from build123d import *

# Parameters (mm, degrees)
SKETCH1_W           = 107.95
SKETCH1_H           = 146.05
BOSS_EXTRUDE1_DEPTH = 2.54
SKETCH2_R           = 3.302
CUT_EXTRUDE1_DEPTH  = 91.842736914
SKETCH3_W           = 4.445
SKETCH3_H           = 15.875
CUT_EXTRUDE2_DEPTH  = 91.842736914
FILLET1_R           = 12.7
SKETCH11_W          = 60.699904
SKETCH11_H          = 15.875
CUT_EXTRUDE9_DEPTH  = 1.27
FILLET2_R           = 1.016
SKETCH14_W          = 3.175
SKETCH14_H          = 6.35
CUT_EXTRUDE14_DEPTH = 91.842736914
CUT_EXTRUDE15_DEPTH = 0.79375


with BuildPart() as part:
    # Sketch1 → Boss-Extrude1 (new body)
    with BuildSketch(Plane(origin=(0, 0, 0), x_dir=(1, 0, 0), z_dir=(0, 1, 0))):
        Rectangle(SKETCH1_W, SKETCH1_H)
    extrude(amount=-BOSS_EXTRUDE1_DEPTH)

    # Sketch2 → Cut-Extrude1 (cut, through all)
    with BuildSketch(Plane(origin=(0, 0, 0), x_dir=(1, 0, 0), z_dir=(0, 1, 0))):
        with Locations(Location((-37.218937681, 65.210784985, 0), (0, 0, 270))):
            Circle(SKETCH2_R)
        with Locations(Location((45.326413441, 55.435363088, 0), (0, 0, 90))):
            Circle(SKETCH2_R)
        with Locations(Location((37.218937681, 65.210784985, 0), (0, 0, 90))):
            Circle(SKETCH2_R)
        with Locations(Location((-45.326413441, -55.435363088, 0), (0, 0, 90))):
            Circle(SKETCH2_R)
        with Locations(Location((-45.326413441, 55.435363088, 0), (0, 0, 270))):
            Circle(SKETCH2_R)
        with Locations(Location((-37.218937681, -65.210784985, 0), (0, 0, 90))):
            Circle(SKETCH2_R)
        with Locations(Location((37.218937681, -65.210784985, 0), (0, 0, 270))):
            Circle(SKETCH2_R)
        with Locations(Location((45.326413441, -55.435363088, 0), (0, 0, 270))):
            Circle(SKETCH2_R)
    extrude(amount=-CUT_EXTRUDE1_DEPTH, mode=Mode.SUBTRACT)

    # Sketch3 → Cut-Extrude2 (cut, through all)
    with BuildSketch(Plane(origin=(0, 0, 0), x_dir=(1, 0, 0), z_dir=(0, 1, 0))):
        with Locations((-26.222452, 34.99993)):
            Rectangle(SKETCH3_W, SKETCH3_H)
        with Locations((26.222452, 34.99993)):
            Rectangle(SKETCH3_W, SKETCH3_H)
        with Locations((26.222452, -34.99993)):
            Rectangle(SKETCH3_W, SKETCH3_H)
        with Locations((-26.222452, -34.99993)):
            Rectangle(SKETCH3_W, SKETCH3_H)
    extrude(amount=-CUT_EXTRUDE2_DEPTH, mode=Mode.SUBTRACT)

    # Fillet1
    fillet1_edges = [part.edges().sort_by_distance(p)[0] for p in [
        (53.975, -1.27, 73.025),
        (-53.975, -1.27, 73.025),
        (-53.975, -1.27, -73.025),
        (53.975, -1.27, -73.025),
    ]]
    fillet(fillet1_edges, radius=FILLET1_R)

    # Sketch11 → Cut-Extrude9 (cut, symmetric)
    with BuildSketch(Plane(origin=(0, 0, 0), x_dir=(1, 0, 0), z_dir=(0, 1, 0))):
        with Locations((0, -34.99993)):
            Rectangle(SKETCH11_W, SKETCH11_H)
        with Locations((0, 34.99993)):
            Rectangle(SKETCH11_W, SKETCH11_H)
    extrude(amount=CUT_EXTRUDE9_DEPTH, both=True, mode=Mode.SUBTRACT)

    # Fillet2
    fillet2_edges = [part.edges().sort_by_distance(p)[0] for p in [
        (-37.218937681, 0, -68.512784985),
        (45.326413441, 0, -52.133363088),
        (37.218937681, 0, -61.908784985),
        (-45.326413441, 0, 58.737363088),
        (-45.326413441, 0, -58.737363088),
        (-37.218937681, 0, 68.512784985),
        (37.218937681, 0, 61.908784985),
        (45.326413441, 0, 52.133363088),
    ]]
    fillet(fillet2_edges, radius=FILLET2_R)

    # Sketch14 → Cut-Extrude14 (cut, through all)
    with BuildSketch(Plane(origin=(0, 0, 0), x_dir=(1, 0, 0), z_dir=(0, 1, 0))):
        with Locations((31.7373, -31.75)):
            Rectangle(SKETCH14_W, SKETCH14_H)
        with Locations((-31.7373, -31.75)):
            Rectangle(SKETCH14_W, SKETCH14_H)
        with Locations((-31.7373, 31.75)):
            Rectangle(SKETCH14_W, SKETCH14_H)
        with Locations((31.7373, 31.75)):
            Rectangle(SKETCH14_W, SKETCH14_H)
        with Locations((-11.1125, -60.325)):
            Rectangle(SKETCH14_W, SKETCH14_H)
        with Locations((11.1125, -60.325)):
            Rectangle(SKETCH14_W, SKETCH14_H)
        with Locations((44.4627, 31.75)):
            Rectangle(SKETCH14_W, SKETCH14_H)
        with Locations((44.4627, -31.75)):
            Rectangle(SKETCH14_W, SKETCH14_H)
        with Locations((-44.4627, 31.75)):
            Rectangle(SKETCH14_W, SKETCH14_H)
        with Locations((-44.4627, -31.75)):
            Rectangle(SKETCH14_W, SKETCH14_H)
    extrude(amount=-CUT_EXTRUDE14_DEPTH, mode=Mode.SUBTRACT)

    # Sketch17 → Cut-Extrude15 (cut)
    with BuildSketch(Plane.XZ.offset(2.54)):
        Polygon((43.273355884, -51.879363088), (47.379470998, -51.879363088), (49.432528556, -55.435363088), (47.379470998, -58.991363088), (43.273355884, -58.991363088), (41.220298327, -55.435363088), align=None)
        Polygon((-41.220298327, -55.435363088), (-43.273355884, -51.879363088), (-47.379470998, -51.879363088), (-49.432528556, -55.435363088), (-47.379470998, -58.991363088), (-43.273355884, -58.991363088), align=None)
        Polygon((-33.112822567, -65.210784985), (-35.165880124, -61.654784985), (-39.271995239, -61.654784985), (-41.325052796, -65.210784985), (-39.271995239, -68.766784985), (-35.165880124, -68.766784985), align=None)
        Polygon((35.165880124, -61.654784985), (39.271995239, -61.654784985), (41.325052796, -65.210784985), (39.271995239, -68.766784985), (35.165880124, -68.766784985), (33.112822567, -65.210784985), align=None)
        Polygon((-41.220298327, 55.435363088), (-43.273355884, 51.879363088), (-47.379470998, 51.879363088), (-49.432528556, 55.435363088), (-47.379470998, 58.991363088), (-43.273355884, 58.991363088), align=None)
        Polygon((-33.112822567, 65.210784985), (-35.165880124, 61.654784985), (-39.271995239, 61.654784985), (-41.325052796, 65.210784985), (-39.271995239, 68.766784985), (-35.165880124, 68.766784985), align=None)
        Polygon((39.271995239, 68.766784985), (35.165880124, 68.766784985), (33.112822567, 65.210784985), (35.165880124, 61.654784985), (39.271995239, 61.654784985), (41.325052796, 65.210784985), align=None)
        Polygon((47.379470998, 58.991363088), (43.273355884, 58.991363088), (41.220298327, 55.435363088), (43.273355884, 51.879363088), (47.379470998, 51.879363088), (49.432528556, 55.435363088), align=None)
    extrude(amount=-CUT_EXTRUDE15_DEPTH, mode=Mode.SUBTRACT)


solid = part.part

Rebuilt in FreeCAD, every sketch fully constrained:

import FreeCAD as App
import Part
import Sketcher
Q = App.Units.Quantity


def edges_at(feature, points):
    """Names of the edges that pass closest to the given points."""
    edges = feature.Shape.Edges
    near = lambda p: min(range(len(edges)), key=lambda i: edges[i].distToShape(Part.Vertex(*p))[0])
    return sorted({f"Edge{near(p) + 1}" for p in points})


def add_polygon(sketch, points):
    """Adds a closed chain of lines whose ends are joined by coincident constraints."""
    first, n = sketch.GeometryCount, len(points)
    for a, b in zip(points, points[1:] + points[:1]):
        sketch.addGeometry(Part.LineSegment(App.Vector(*a, 0), App.Vector(*b, 0)), False)
    for i in range(n):
        sketch.addConstraint(Sketcher.Constraint("Coincident", first + i, 2, first + (i + 1) % n, 1))

doc = App.newDocument("Part")
body = doc.addObject("PartDesign::Body", "Body")

# Sketch on XZ plane
sketch1 = body.newObject("Sketcher::SketchObject", "Sketch")
sketch1.AttachmentSupport = (doc.getObject("XZ_Plane"), [""])
sketch1.MapMode = "FlatFace"
add_polygon(sketch1, [(-54, -73), (-54, 73), (54, 73), (54, -73)])  # lines 0-3
sketch1.addConstraint([
    Sketcher.Constraint("Vertical", 0),
    Sketcher.Constraint("Horizontal", 1),
    Sketcher.Constraint("Vertical", 2),
    Sketcher.Constraint("Horizontal", 3),
    Sketcher.Constraint("Symmetric", 0, 2, 2, 2, -1, 1),
    Sketcher.Constraint("DistanceX", 1, 1, 1, 2, Q("4.25 in")),
    Sketcher.Constraint("DistanceY", 0, 1, 0, 2, Q("5.75 in")),
])
pad1 = body.newObject("PartDesign::Pad", "Pad")
pad1.Profile = sketch1
pad1.Length = Q("0.1 in")

# Sketch on XZ plane
sketch2 = body.newObject("Sketcher::SketchObject", "Sketch001")
sketch2.AttachmentSupport = (doc.getObject("XZ_Plane"), [""])
sketch2.MapMode = "FlatFace"
sketch2.addGeometry([
    Part.Circle(App.Vector(-37.2, -65.2, 0), App.Vector(0, 0, 1), 3.3),  # 0
    Part.Circle(App.Vector(45.3, -55.4, 0), App.Vector(0, 0, 1), 3.3),  # 1
    Part.Circle(App.Vector(37.2, -65.2, 0), App.Vector(0, 0, 1), 3.3),  # 2
    Part.Circle(App.Vector(-45.3, 55.4, 0), App.Vector(0, 0, 1), 3.3),  # 3
    Part.Circle(App.Vector(-45.3, -55.4, 0), App.Vector(0, 0, 1), 3.3),  # 4
    Part.Circle(App.Vector(-37.2, 65.2, 0), App.Vector(0, 0, 1), 3.3),  # 5
    Part.Circle(App.Vector(37.2, 65.2, 0), App.Vector(0, 0, 1), 3.3),  # 6
    Part.Circle(App.Vector(45.3, 55.4, 0), App.Vector(0, 0, 1), 3.3),  # 7
], False)
sketch2.addConstraint([
    Sketcher.Constraint("Equal", 0, 1),
    Sketcher.Constraint("Equal", 1, 2),
    Sketcher.Constraint("Equal", 2, 3),
    Sketcher.Constraint("Equal", 3, 4),
    Sketcher.Constraint("Equal", 4, 5),
    Sketcher.Constraint("Equal", 5, 6),
    Sketcher.Constraint("Equal", 6, 7),
    Sketcher.Constraint("Symmetric", 1, 3, 3, 3, -1, 1),
    Sketcher.Constraint("Symmetric", 2, 3, 5, 3, -1, 1),
    Sketcher.Constraint("Symmetric", 0, 3, 6, 3, -1, 1),
    Sketcher.Constraint("Symmetric", 4, 3, 7, 3, -1, 1),
    Sketcher.Constraint("Symmetric", 0, 3, 2, 3, -2),
    Sketcher.Constraint("Symmetric", 1, 3, 4, 3, -2),
    Sketcher.Constraint("Diameter", 0, Q("0.26 in")),
    Sketcher.Constraint("DistanceX", 0, 3, 1, 3, Q("82.545351 mm")),
    Sketcher.Constraint("DistanceY", 0, 3, 1, 3, Q("9.775422 mm")),
    Sketcher.Constraint("DistanceY", 0, 3, 3, 3, Q("120.646148 mm")),
    Sketcher.Constraint("DistanceX", 0, 3, -1, 1, Q("37.218938 mm")),
])
pocket1 = body.newObject("PartDesign::Pocket", "Pocket")
pocket1.Profile = sketch2
pocket1.Type = "ThroughAll"
pocket1.Reversed = True

# Sketch on XZ plane
sketch3 = body.newObject("Sketcher::SketchObject", "Sketch002")
sketch3.AttachmentSupport = (doc.getObject("XZ_Plane"), [""])
sketch3.MapMode = "FlatFace"
add_polygon(sketch3, [(-28.4, -42.9), (-28.4, -27.1), (-24, -27.1), (-24, -42.9)])  # lines 0-3
add_polygon(sketch3, [(24, -42.9), (24, -27.1), (28.4, -27.1), (28.4, -42.9)])  # lines 4-7
add_polygon(sketch3, [(24, 27.1), (24, 42.9), (28.4, 42.9), (28.4, 27.1)])  # lines 8-11
add_polygon(sketch3, [(-28.4, 27.1), (-28.4, 42.9), (-24, 42.9), (-24, 27.1)])  # lines 12-15
sketch3.addConstraint([
    Sketcher.Constraint("Vertical", 0),
    Sketcher.Constraint("Horizontal", 1),
    Sketcher.Constraint("Vertical", 2),
    Sketcher.Constraint("Horizontal", 3),
    Sketcher.Constraint("Vertical", 4),
    Sketcher.Constraint("Horizontal", 5),
    Sketcher.Constraint("Vertical", 6),
    Sketcher.Constraint("Horizontal", 7),
    Sketcher.Constraint("Vertical", 8),
    Sketcher.Constraint("Horizontal", 9),
    Sketcher.Constraint("Vertical", 10),
    Sketcher.Constraint("Horizontal", 11),
    Sketcher.Constraint("Vertical", 12),
    Sketcher.Constraint("Horizontal", 13),
    Sketcher.Constraint("Vertical", 14),
    Sketcher.Constraint("Horizontal", 15),
    Sketcher.Constraint("Symmetric", 2, 2, 8, 2, -1, 1),
    Sketcher.Constraint("Symmetric", 0, 2, 10, 2, -1, 1),
    Sketcher.Constraint("Symmetric", 6, 2, 12, 2, -1, 1),
    Sketcher.Constraint("Symmetric", 4, 2, 14, 2, -1, 1),
    Sketcher.Constraint("Symmetric", 1, 2, 4, 2, -2),
    Sketcher.Constraint("Symmetric", 3, 2, 6, 2, -2),
    Sketcher.Constraint("DistanceX", 1, 1, 1, 2, Q("0.175 in")),
    Sketcher.Constraint("DistanceY", 0, 1, 0, 2, Q("0.625 in")),
    Sketcher.Constraint("DistanceY", 4, 2, 8, 2, Q("2.7559 in")),
    Sketcher.Constraint("DistanceX", 0, 2, -1, 1, Q("28.444952 mm")),
])
pocket2 = body.newObject("PartDesign::Pocket", "Pocket001")
pocket2.Profile = sketch3
pocket2.Type = "ThroughAll"
pocket2.Reversed = True
doc.recompute()

fillet = body.newObject("PartDesign::Fillet", "Fillet")
fillet.Base = (pocket2, edges_at(pocket2, [
    (53.975, -1.27, 73.025),
    (-53.975, -1.27, 73.025),
    (-53.975, -1.27, -73.025),
    (53.975, -1.27, -73.025),
]))
fillet.Radius = Q("0.5 in")

# Sketch on XZ plane
sketch4 = body.newObject("Sketcher::SketchObject", "Sketch003")
sketch4.AttachmentSupport = (doc.getObject("XZ_Plane"), [""])
sketch4.MapMode = "FlatFace"
add_polygon(sketch4, [(-30, 27), (-30, 43), (30, 43), (30, 27)])  # lines 0-3
add_polygon(sketch4, [(-30, -43), (-30, -27), (30, -27), (30, -43)])  # lines 4-7
sketch4.addConstraint([
    Sketcher.Constraint("Vertical", 0),
    Sketcher.Constraint("Horizontal", 1),
    Sketcher.Constraint("Vertical", 2),
    Sketcher.Constraint("Horizontal", 3),
    Sketcher.Constraint("Vertical", 4),
    Sketcher.Constraint("Horizontal", 5),
    Sketcher.Constraint("Vertical", 6),
    Sketcher.Constraint("Horizontal", 7),
    Sketcher.Constraint("Symmetric", 2, 2, 4, 2, -1, 1),
    Sketcher.Constraint("Symmetric", 0, 2, 6, 2, -1, 1),
    Sketcher.Constraint("Vertical", 3, 2, 4, 2),
    Sketcher.Constraint("DistanceY", 0, 1, 0, 2, Q("0.625 in")),
    Sketcher.Constraint("DistanceY", 4, 2, 3, 2, Q("2.1309 in")),
    Sketcher.Constraint("DistanceX", 1, 1, 1, 2, Q("60.699904 mm")),
])
pocket3 = body.newObject("PartDesign::Pocket", "Pocket002")
pocket3.Profile = sketch4
pocket3.Length = Q("0.1 in")
pocket3.Midplane = True
doc.recompute()

fillet2 = body.newObject("PartDesign::Fillet", "Fillet001")
fillet2.Base = (pocket3, edges_at(pocket3, [
    (-37.219, 0, -68.513),
    (45.326, 0, -52.133),
    (37.219, 0, -61.909),
    (-45.326, 0, 58.737),
    (-45.326, 0, -58.737),
    (-37.219, 0, 68.513),
    (37.219, 0, 61.909),
    (45.326, 0, 52.133),
]))
fillet2.Radius = Q("0.04 in")

# Sketch on XZ plane
sketch5 = body.newObject("Sketcher::SketchObject", "Sketch004")
sketch5.AttachmentSupport = (doc.getObject("XZ_Plane"), [""])
sketch5.MapMode = "FlatFace"
add_polygon(sketch5, [(30.1, 28.6), (30.1, 34.9), (33.3, 34.9), (33.3, 28.6)])  # lines 0-3
add_polygon(sketch5, [(-33.3, 28.6), (-33.3, 34.9), (-30.1, 34.9), (-30.1, 28.6)])  # lines 4-7
add_polygon(sketch5, [(-33.3, -34.9), (-33.3, -28.6), (-30.1, -28.6), (-30.1, -34.9)])  # lines 8-11
add_polygon(sketch5, [(30.1, -34.9), (30.1, -28.6), (33.3, -28.6), (33.3, -34.9)])  # lines 12-15
add_polygon(sketch5, [(-12.7, 57.1), (-12.7, 63.5), (-9.5, 63.5), (-9.5, 57.1)])  # lines 16-19
add_polygon(sketch5, [(9.5, 57.1), (9.5, 63.5), (12.7, 63.5), (12.7, 57.1)])  # lines 20-23
add_polygon(sketch5, [(42.9, -34.9), (42.9, -28.6), (46.1, -28.6), (46.1, -34.9)])  # lines 24-27
add_polygon(sketch5, [(42.9, 28.6), (42.9, 34.9), (46.1, 34.9), (46.1, 28.6)])  # lines 28-31
add_polygon(sketch5, [(-46.1, -34.9), (-46.1, -28.6), (-42.9, -28.6), (-42.9, -34.9)])  # lines 32-35
add_polygon(sketch5, [(-46.1, 28.6), (-46.1, 34.9), (-42.9, 34.9), (-42.9, 28.6)])  # lines 36-39
sketch5.addConstraint([
    Sketcher.Constraint("Vertical", 0),
    Sketcher.Constraint("Horizontal", 1),
    Sketcher.Constraint("Vertical", 2),
    Sketcher.Constraint("Horizontal", 3),
    Sketcher.Constraint("Vertical", 4),
    Sketcher.Constraint("Horizontal", 5),
    Sketcher.Constraint("Vertical", 6),
    Sketcher.Constraint("Horizontal", 7),
    Sketcher.Constraint("Vertical", 8),
    Sketcher.Constraint("Horizontal", 9),
    Sketcher.Constraint("Vertical", 10),
    Sketcher.Constraint("Horizontal", 11),
    Sketcher.Constraint("Vertical", 12),
    Sketcher.Constraint("Horizontal", 13),
    Sketcher.Constraint("Vertical", 14),
    Sketcher.Constraint("Horizontal", 15),
    Sketcher.Constraint("Vertical", 16),
    Sketcher.Constraint("Horizontal", 17),
    Sketcher.Constraint("Vertical", 18),
    Sketcher.Constraint("Horizontal", 19),
    Sketcher.Constraint("Vertical", 20),
    Sketcher.Constraint("Horizontal", 21),
    Sketcher.Constraint("Vertical", 22),
    Sketcher.Constraint("Horizontal", 23),
    Sketcher.Constraint("Vertical", 24),
    Sketcher.Constraint("Horizontal", 25),
    Sketcher.Constraint("Vertical", 26),
    Sketcher.Constraint("Horizontal", 27),
    Sketcher.Constraint("Vertical", 28),
    Sketcher.Constraint("Horizontal", 29),
    Sketcher.Constraint("Vertical", 30),
    Sketcher.Constraint("Horizontal", 31),
    Sketcher.Constraint("Vertical", 32),
    Sketcher.Constraint("Horizontal", 33),
    Sketcher.Constraint("Vertical", 34),
    Sketcher.Constraint("Horizontal", 35),
    Sketcher.Constraint("Vertical", 36),
    Sketcher.Constraint("Horizontal", 37),
    Sketcher.Constraint("Vertical", 38),
    Sketcher.Constraint("Horizontal", 39),
    Sketcher.Constraint("Symmetric", 2, 2, 8, 2, -1, 1),
    Sketcher.Constraint("Symmetric", 0, 2, 10, 2, -1, 1),
    Sketcher.Constraint("Symmetric", 6, 2, 12, 2, -1, 1),
    Sketcher.Constraint("Symmetric", 4, 2, 14, 2, -1, 1),
    Sketcher.Constraint("Symmetric", 30, 2, 32, 2, -1, 1),
    Sketcher.Constraint("Symmetric", 28, 2, 34, 2, -1, 1),
    Sketcher.Constraint("Symmetric", 26, 2, 36, 2, -1, 1),
    Sketcher.Constraint("Symmetric", 24, 2, 38, 2, -1, 1),
    Sketcher.Constraint("Symmetric", 1, 2, 4, 2, -2),
    Sketcher.Constraint("Symmetric", 3, 2, 6, 2, -2),
    Sketcher.Constraint("Symmetric", 17, 2, 20, 2, -2),
    Sketcher.Constraint("Symmetric", 19, 2, 22, 2, -2),
    Sketcher.Constraint("Symmetric", 25, 2, 32, 2, -2),
    Sketcher.Constraint("Symmetric", 27, 2, 34, 2, -2),
    Sketcher.Constraint("Horizontal", 13, 2, 24, 2),
    Sketcher.Constraint("Horizontal", 15, 2, 26, 2),
    Sketcher.Constraint("Equal", 15, 17),
    Sketcher.Constraint("Equal", 23, 25),
    Sketcher.Constraint("Equal", 14, 16),
    Sketcher.Constraint("DistanceX", 16, 2, 21, 2, Q("1 in")),
    Sketcher.Constraint("DistanceY", 0, 1, 0, 2, Q("0.25 in")),
    Sketcher.Constraint("DistanceY", -1, 1, 16, 2, Q("2.5 in")),
    Sketcher.Constraint("DistanceY", 8, 2, 4, 2, Q("2.5 in")),
    Sketcher.Constraint("DistanceX", 1, 1, 1, 2, Q("0.125 in")),
    Sketcher.Constraint("DistanceX", -1, 1, 0, 2, Q("1.187 in")),
    Sketcher.Constraint("DistanceX", -1, 1, 24, 2, Q("1.688 in")),
])
pocket4 = body.newObject("PartDesign::Pocket", "Pocket003")
pocket4.Profile = sketch5
pocket4.Type = "ThroughAll"
pocket4.Reversed = True

# Sketch on XZ plane
sketch6 = body.newObject("Sketcher::SketchObject", "Sketch005")
sketch6.AttachmentSupport = (doc.getObject("XZ_Plane"), [""])
sketch6.MapMode = "FlatFace"
sketch6.AttachmentOffset = App.Placement(App.Vector(0, 0, 0.1 * 25.4), App.Rotation())
add_polygon(sketch6, [(47.4, -51.9), (43.3, -51.9), (41.2, -55.4), (43.3, -59), (47.4, -59), (49.4, -55.4)])  # lines 0-5
add_polygon(sketch6, [(-41.2, -55.4), (-43.3, -51.9), (-47.4, -51.9), (-49.4, -55.4), (-47.4, -59), (-43.3, -59)])  # lines 6-11
add_polygon(sketch6, [(-33.1, -65.2), (-35.2, -61.7), (-39.3, -61.7), (-41.3, -65.2), (-39.3, -68.8), (-35.2, -68.8)])  # lines 12-17
add_polygon(sketch6, [(39.3, -61.7), (35.2, -61.7), (33.1, -65.2), (35.2, -68.8), (39.3, -68.8), (41.3, -65.2)])  # lines 18-23
add_polygon(sketch6, [(-43.3, 51.9), (-41.2, 55.4), (-43.3, 59), (-47.4, 59), (-49.4, 55.4), (-47.4, 51.9)])  # lines 24-29
add_polygon(sketch6, [(-35.2, 61.7), (-33.1, 65.2), (-35.2, 68.8), (-39.3, 68.8), (-41.3, 65.2), (-39.3, 61.7)])  # lines 30-35
add_polygon(sketch6, [(39.3, 68.8), (35.2, 68.8), (33.1, 65.2), (35.2, 61.7), (39.3, 61.7), (41.3, 65.2)])  # lines 36-41
add_polygon(sketch6, [(47.4, 59), (43.3, 59), (41.2, 55.4), (43.3, 51.9), (47.4, 51.9), (49.4, 55.4)])  # lines 42-47
sketch6.addConstraint([
    Sketcher.Constraint("Horizontal", 0),
    Sketcher.Constraint("Horizontal", 3),
    Sketcher.Constraint("Horizontal", 7),
    Sketcher.Constraint("Horizontal", 10),
    Sketcher.Constraint("Horizontal", 13),
    Sketcher.Constraint("Horizontal", 16),
    Sketcher.Constraint("Horizontal", 18),
    Sketcher.Constraint("Horizontal", 21),
    Sketcher.Constraint("Horizontal", 26),
    Sketcher.Constraint("Horizontal", 29),
    Sketcher.Constraint("Horizontal", 32),
    Sketcher.Constraint("Horizontal", 35),
    Sketcher.Constraint("Horizontal", 36),
    Sketcher.Constraint("Horizontal", 39),
    Sketcher.Constraint("Horizontal", 42),
    Sketcher.Constraint("Horizontal", 45),
    Sketcher.Constraint("Symmetric", 1, 2, 24, 2, -1, 1),
    Sketcher.Constraint("Symmetric", 2, 2, 25, 2, -1, 1),
    Sketcher.Constraint("Symmetric", 4, 2, 27, 2, -1, 1),
    Sketcher.Constraint("Symmetric", 5, 2, 28, 2, -1, 1),
    Sketcher.Constraint("Symmetric", 19, 2, 30, 2, -1, 1),
    Sketcher.Constraint("Symmetric", 20, 2, 31, 2, -1, 1),
    Sketcher.Constraint("Symmetric", 22, 2, 33, 2, -1, 1),
    Sketcher.Constraint("Symmetric", 23, 2, 34, 2, -1, 1),
    Sketcher.Constraint("Symmetric", 16, 2, 36, 2, -1, 1),
    Sketcher.Constraint("Symmetric", 17, 2, 37, 2, -1, 1),
    Sketcher.Constraint("Symmetric", 12, 2, 38, 2, -1, 1),
    Sketcher.Constraint("Symmetric", 14, 2, 40, 2, -1, 1),
    Sketcher.Constraint("Symmetric", 10, 2, 42, 2, -1, 1),
    Sketcher.Constraint("Symmetric", 11, 2, 43, 2, -1, 1),
    Sketcher.Constraint("Symmetric", 6, 2, 44, 2, -1, 1),
    Sketcher.Constraint("Symmetric", 8, 2, 46, 2, -1, 1),
    Sketcher.Constraint("Symmetric", 0, 2, 6, 2, -2),
    Sketcher.Constraint("Symmetric", 4, 2, 8, 2, -2),
    Sketcher.Constraint("Symmetric", 3, 2, 9, 2, -2),
    Sketcher.Constraint("Symmetric", 1, 2, 11, 2, -2),
    Sketcher.Constraint("Symmetric", 12, 2, 18, 2, -2),
    Sketcher.Constraint("Symmetric", 17, 2, 19, 2, -2),
    Sketcher.Constraint("Symmetric", 16, 2, 20, 2, -2),
    Sketcher.Constraint("Symmetric", 14, 2, 22, 2, -2),
    Sketcher.Constraint("Parallel", 1, 4),
    Sketcher.Constraint("Parallel", 2, 5),
    Sketcher.Constraint("Parallel", 5, 6),
    Sketcher.Constraint("Parallel", 4, 8),
    Sketcher.Constraint("Parallel", 8, 11),
    Sketcher.Constraint("Parallel", 9, 12),
    Sketcher.Constraint("Parallel", 11, 14),
    Sketcher.Constraint("Parallel", 12, 15),
    Sketcher.Constraint("Parallel", 14, 17),
    Sketcher.Constraint("Parallel", 19, 22),
    Sketcher.Constraint("Parallel", 20, 23),
    Sketcher.Constraint("Parallel", 22, 24),
    Sketcher.Constraint("Parallel", 24, 27),
    Sketcher.Constraint("Parallel", 27, 30),
    Sketcher.Constraint("Parallel", 30, 33),
    Sketcher.Constraint("Parallel", 37, 40),
    Sketcher.Constraint("Parallel", 38, 41),
    Sketcher.Constraint("Parallel", 43, 46),
    Sketcher.Constraint("Parallel", 44, 47),
    Sketcher.Constraint("Horizontal", 1, 2, 4, 2),
    Sketcher.Constraint("Horizontal", 14, 2, 17, 2),
    Sketcher.Constraint("Vertical", 0, 2, 2, 2),
    Sketcher.Constraint("Vertical", 13, 2, 15, 2),
    Sketcher.Constraint("Equal", 10, 13),
    Sketcher.Constraint("Equal", 11, 12),
    Sketcher.Constraint("Angle", 1, Q("-120 deg")),
    Sketcher.Constraint("DistanceY", 1, 2, 0, 2, Q("0.14 in")),
    Sketcher.Constraint("DistanceX", -1, 1, 1, 2, Q("41.220298 mm")),
    Sketcher.Constraint("DistanceX", 0, 2, 0, 1, Q("4.106115 mm")),
    Sketcher.Constraint("DistanceX", 12, 2, -1, 1, Q("35.16588 mm")),
    Sketcher.Constraint("DistanceY", 12, 2, 10, 2, Q("2.663422 mm")),
    Sketcher.Constraint("DistanceY", 0, 2, -1, 1, Q("51.879363 mm")),
])
pocket5 = body.newObject("PartDesign::Pocket", "Pocket004")
pocket5.Profile = sketch6
pocket5.Length = Q("0.03125 in")

doc.recompute()
